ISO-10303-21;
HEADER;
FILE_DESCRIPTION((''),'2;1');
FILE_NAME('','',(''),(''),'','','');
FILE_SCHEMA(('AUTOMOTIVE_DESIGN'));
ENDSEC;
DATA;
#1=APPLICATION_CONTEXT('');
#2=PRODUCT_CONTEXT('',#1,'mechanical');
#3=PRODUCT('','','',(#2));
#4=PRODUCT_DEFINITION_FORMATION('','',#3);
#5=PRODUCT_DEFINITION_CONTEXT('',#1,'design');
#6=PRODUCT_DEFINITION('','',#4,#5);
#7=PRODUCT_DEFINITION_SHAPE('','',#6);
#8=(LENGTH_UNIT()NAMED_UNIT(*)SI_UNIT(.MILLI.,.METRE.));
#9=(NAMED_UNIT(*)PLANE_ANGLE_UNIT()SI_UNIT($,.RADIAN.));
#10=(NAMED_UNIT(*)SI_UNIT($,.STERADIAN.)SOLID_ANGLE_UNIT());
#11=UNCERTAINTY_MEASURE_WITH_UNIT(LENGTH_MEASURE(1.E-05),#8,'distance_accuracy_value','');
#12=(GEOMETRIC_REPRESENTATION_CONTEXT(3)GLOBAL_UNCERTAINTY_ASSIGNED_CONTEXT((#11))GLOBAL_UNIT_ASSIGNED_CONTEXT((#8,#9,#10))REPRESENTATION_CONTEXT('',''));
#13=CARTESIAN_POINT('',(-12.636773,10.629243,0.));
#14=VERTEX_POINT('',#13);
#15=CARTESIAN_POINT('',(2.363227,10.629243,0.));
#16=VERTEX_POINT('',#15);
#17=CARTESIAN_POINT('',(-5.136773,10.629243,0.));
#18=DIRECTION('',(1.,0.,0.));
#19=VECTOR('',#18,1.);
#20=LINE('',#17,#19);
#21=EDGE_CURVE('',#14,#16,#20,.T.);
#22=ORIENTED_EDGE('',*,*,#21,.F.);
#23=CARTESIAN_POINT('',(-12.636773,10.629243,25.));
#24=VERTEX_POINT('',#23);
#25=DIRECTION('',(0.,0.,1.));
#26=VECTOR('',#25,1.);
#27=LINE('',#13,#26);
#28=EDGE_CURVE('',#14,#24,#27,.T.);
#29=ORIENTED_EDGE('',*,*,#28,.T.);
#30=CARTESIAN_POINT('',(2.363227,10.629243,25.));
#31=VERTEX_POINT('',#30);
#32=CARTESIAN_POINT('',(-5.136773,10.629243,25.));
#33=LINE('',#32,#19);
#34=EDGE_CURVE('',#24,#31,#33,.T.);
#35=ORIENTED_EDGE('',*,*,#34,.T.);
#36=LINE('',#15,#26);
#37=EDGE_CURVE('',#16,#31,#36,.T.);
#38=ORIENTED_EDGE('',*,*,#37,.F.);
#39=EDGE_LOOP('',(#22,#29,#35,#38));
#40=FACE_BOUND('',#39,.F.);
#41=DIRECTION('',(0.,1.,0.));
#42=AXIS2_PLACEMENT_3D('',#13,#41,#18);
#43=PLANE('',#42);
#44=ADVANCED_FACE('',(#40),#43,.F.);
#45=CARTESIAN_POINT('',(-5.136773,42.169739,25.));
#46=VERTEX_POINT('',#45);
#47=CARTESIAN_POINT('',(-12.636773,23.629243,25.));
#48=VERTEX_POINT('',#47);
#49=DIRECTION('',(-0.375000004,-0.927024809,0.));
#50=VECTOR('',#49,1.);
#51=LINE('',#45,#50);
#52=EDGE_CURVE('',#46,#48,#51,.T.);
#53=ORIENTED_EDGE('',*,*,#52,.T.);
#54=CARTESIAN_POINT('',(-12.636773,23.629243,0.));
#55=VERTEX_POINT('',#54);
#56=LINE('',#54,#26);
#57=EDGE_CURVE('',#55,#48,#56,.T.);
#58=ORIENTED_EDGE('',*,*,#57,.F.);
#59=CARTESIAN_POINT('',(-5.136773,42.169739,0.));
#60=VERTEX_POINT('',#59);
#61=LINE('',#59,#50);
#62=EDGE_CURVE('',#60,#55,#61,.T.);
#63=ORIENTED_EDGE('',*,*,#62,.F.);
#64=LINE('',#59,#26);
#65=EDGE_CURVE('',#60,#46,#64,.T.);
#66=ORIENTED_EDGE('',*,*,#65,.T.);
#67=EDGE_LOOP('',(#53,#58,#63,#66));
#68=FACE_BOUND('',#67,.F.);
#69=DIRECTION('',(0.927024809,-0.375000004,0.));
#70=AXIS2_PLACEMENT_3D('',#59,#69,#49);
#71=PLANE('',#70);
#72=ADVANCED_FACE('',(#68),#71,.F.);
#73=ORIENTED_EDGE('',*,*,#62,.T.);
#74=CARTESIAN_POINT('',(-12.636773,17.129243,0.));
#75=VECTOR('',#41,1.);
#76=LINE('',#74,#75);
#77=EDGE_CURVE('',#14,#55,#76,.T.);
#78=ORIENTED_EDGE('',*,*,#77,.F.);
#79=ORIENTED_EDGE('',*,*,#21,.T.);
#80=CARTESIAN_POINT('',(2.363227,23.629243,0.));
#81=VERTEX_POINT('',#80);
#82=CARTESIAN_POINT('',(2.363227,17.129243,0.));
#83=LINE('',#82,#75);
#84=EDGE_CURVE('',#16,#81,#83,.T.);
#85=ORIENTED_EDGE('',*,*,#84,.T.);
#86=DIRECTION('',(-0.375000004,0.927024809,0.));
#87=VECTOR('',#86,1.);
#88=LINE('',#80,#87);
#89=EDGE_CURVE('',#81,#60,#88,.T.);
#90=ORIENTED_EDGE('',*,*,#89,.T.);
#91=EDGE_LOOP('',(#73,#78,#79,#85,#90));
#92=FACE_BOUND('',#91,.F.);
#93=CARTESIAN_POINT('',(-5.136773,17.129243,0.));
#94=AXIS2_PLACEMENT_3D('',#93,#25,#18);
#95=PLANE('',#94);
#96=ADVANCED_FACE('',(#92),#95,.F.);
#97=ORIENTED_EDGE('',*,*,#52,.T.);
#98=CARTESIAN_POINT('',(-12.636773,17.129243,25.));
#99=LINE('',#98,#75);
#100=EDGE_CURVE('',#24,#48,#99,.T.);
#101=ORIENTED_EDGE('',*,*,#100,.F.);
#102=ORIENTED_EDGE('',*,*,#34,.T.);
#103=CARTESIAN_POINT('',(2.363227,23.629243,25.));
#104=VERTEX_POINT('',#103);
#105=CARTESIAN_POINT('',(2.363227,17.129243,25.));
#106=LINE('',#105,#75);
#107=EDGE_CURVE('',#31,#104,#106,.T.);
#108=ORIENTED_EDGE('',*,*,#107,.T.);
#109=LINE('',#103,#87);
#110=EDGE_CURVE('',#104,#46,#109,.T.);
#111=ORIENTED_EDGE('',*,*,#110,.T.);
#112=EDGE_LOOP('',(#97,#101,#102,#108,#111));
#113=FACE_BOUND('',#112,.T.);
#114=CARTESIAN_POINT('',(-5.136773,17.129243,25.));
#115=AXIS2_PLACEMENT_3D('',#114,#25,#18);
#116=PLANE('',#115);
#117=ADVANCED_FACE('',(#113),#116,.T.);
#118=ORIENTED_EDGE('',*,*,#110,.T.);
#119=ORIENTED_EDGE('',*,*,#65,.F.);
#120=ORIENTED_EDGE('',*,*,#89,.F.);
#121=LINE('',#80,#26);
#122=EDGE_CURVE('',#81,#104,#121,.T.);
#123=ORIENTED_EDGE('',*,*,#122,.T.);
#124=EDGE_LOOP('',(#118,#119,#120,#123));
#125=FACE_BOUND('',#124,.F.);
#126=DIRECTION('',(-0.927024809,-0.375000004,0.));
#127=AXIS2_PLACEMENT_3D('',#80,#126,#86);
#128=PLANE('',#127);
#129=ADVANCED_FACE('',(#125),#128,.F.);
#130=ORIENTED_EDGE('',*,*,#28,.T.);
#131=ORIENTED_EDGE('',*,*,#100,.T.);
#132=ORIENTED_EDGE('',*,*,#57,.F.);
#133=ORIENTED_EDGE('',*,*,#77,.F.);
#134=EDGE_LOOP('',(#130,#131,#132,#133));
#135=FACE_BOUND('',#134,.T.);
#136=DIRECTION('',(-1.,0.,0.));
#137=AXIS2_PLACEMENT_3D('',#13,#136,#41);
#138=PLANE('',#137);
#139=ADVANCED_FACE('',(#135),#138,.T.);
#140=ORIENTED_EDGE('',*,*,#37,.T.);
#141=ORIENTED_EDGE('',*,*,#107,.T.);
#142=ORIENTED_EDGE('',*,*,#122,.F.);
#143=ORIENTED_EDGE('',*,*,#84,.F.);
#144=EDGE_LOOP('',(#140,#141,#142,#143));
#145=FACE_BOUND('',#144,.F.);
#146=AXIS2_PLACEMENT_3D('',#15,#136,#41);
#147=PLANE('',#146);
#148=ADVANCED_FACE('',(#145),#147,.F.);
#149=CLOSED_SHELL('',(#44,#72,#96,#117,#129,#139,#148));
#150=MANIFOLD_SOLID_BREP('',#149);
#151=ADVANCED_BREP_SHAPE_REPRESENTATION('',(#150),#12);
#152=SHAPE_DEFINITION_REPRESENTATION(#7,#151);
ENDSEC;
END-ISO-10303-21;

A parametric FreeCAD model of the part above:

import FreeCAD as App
import Part
import Sketcher
from FreeCAD import Vector


def add_polygon(sketch, points):
    """Adds a closed chain of lines whose ends are joined by coincident constraints."""
    first, n = sketch.GeometryCount, len(points)
    for a, b in zip(points, points[1:] + points[:1]):
        sketch.addGeometry(Part.LineSegment(App.Vector(*a, 0), App.Vector(*b, 0)), False)
    for i in range(n):
        sketch.addConstraint(Sketcher.Constraint("Coincident", first + i, 2, first + (i + 1) % n, 1))

doc = App.newDocument("Part")
body = doc.addObject("PartDesign::Body", "Body")

# Sketch on XY plane
sketch1 = body.newObject("Sketcher::SketchObject", "Sketch")
sketch1.AttachmentSupport = (doc.getObject("XY_Plane"), [""])
sketch1.MapMode = "FlatFace"
add_polygon(sketch1, [(-13, 24), (-13, 11), (2, 11), (2, 24), (-5, 42)])  # lines 0-4
sketch1.addConstraint([
    Sketcher.Constraint("Vertical", 0),
    Sketcher.Constraint("Horizontal", 1),
    Sketcher.Constraint("Vertical", 2),
    Sketcher.Constraint("Horizontal", 2, 2, 4, 2),
    Sketcher.Constraint("Equal", 3, 4),
    Sketcher.Constraint("DistanceX", 1, 1, 1, 2, 15.0),
    Sketcher.Constraint("DistanceY", 0, 2, 0, 1, 13.0),
    Sketcher.Constraint("Distance", 3, 20.0),
    Sketcher.Constraint("DistanceY", -1, 1, 3, 2, 42.169739),
    Sketcher.Constraint("DistanceX", 0, 2, -1, 1, 12.636773),
])
pad1 = body.newObject("PartDesign::Pad", "Pad")
pad1.Profile = sketch1
pad1.Length = 25

doc.recompute()
